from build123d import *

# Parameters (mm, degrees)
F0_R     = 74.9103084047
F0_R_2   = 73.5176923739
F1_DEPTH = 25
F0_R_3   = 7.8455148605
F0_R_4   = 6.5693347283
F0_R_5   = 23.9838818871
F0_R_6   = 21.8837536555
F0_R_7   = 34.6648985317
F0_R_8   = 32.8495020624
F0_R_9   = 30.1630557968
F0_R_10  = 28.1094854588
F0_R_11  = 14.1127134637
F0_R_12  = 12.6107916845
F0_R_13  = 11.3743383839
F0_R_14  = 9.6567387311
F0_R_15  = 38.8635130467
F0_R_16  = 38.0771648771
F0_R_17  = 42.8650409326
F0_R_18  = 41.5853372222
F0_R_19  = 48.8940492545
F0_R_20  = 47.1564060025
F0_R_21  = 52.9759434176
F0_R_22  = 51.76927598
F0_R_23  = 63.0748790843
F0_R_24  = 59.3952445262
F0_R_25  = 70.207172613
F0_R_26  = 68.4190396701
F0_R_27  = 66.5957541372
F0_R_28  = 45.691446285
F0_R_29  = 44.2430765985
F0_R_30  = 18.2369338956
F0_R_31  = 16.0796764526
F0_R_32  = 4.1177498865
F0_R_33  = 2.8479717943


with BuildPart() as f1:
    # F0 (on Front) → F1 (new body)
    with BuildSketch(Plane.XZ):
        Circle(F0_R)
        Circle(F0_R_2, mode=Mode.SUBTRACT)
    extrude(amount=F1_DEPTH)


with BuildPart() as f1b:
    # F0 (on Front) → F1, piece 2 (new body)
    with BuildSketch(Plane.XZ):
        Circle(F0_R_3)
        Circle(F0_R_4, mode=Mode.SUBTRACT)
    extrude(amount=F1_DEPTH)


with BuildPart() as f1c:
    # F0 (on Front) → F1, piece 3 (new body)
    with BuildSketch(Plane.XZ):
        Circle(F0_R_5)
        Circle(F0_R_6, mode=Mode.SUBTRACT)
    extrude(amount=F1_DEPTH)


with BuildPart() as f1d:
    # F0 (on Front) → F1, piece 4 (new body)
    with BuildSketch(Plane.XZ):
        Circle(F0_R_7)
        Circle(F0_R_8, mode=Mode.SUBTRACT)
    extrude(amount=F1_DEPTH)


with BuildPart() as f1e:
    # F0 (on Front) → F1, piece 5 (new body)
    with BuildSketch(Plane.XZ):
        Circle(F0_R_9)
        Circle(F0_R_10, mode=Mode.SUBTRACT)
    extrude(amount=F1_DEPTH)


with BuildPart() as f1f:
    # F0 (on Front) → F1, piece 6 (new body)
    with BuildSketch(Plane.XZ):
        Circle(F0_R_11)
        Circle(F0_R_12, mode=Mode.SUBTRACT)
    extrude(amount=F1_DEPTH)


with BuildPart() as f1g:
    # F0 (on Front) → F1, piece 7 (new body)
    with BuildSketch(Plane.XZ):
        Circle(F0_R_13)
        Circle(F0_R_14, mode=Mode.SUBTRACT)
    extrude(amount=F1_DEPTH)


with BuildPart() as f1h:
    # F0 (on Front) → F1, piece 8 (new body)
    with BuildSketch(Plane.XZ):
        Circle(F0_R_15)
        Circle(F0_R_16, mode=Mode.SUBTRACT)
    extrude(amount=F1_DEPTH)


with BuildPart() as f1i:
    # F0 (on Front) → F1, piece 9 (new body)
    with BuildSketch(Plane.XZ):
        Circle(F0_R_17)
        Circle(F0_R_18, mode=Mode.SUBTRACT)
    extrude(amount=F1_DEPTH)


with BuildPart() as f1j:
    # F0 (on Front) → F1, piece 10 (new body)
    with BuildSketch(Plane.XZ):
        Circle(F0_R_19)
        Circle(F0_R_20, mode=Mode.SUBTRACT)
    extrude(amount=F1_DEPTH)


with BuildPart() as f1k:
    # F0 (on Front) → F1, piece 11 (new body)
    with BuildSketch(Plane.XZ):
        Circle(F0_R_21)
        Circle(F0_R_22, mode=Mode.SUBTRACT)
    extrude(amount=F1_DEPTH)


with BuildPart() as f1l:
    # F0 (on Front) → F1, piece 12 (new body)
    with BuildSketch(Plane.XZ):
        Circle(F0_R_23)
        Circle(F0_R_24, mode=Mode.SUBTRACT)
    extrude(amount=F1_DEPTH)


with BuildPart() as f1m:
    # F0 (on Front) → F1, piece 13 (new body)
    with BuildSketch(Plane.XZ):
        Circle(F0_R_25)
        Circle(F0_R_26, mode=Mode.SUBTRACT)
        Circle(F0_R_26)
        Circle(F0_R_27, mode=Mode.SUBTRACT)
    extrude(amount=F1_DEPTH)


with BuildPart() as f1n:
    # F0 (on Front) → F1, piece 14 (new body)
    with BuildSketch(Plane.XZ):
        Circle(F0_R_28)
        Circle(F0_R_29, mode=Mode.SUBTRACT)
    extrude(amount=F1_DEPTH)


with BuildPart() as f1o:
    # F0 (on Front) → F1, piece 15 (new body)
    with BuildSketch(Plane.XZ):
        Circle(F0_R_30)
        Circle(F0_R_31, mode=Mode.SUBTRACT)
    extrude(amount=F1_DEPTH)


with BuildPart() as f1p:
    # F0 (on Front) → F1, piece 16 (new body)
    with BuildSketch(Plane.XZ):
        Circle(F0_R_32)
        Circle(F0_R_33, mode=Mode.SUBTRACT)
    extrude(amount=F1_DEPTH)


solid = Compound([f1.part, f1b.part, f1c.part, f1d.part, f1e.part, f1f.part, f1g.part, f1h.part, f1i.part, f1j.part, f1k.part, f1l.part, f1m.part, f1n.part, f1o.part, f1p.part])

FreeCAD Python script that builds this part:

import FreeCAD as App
import Part
import Sketcher
from FreeCAD import Vector
Q = App.Units.Quantity

doc = App.newDocument("Part")
body = doc.addObject("PartDesign::Body", "Body")

# Sketch on XZ plane
sketch1 = body.newObject("Sketcher::SketchObject", "Sketch")
sketch1.AttachmentSupport = (doc.getObject("XZ_Plane"), [""])
sketch1.MapMode = "FlatFace"
sketch1.addGeometry(Part.Circle(Vector(0, 0, 0), Vector(0, 0, 1), 74.910308), False)
sketch1.addGeometry(Part.Circle(Vector(0, 0, 0), Vector(0, 0, 1), 73.517692), False)
sketch1.addConstraint(Sketcher.Constraint("Coincident", 0, 3, -1, 1))
sketch1.addConstraint(Sketcher.Constraint("Coincident", 1, 3, -1, 1))
sketch1.addConstraint(Sketcher.Constraint("Diameter", 0, Q("149.820617 mm")))
sketch1.addConstraint(Sketcher.Constraint("Diameter", 1, Q("147.035385 mm")))
pad1 = body.newObject("PartDesign::Pad", "Pad")
pad1.Profile = sketch1
pad1.Length = 25
body2 = doc.addObject("PartDesign::Body", "Body001")

# Sketch on XZ plane
sketch2 = body2.newObject("Sketcher::SketchObject", "Sketch001")
sketch2.AttachmentSupport = (doc.getObject("XZ_Plane001"), [""])
sketch2.MapMode = "FlatFace"
sketch2.addGeometry(Part.Circle(Vector(0, 0, 0), Vector(0, 0, 1), 7.845515), False)
sketch2.addGeometry(Part.Circle(Vector(0, 0, 0), Vector(0, 0, 1), 6.569335), False)
sketch2.addConstraint(Sketcher.Constraint("Coincident", 0, 3, -1, 1))
sketch2.addConstraint(Sketcher.Constraint("Coincident", 1, 3, -1, 1))
sketch2.addConstraint(Sketcher.Constraint("Diameter", 0, Q("15.69103 mm")))
sketch2.addConstraint(Sketcher.Constraint("Diameter", 1, Q("13.138669 mm")))
pad2 = body2.newObject("PartDesign::Pad", "Pad001")
pad2.Profile = sketch2
pad2.Length = 25
body3 = doc.addObject("PartDesign::Body", "Body002")

# Sketch on XZ plane
sketch3 = body3.newObject("Sketcher::SketchObject", "Sketch002")
sketch3.AttachmentSupport = (doc.getObject("XZ_Plane002"), [""])
sketch3.MapMode = "FlatFace"
sketch3.addGeometry(Part.Circle(Vector(0, 0, 0), Vector(0, 0, 1), 23.983882), False)
sketch3.addGeometry(Part.Circle(Vector(0, 0, 0), Vector(0, 0, 1), 21.883754), False)
sketch3.addConstraint(Sketcher.Constraint("Coincident", 0, 3, -1, 1))
sketch3.addConstraint(Sketcher.Constraint("Coincident", 1, 3, -1, 1))
sketch3.addConstraint(Sketcher.Constraint("Diameter", 0, Q("47.967764 mm")))
sketch3.addConstraint(Sketcher.Constraint("Diameter", 1, Q("43.767507 mm")))
pad3 = body3.newObject("PartDesign::Pad", "Pad002")
pad3.Profile = sketch3
pad3.Length = 25
body4 = doc.addObject("PartDesign::Body", "Body003")

# Sketch on XZ plane
sketch4 = body4.newObject("Sketcher::SketchObject", "Sketch003")
sketch4.AttachmentSupport = (doc.getObject("XZ_Plane003"), [""])
sketch4.MapMode = "FlatFace"
sketch4.addGeometry(Part.Circle(Vector(0, 0, 0), Vector(0, 0, 1), 34.664899), False)
sketch4.addGeometry(Part.Circle(Vector(0, 0, 0), Vector(0, 0, 1), 32.849502), False)
sketch4.addConstraint(Sketcher.Constraint("Coincident", 0, 3, -1, 1))
sketch4.addConstraint(Sketcher.Constraint("Coincident", 1, 3, -1, 1))
sketch4.addConstraint(Sketcher.Constraint("Diameter", 0, Q("69.329797 mm")))
sketch4.addConstraint(Sketcher.Constraint("Diameter", 1, Q("65.699004 mm")))
pad4 = body4.newObject("PartDesign::Pad", "Pad003")
pad4.Profile = sketch4
pad4.Length = 25
body5 = doc.addObject("PartDesign::Body", "Body004")

# Sketch on XZ plane
sketch5 = body5.newObject("Sketcher::SketchObject", "Sketch004")
sketch5.AttachmentSupport = (doc.getObject("XZ_Plane004"), [""])
sketch5.MapMode = "FlatFace"
sketch5.addGeometry(Part.Circle(Vector(0, 0, 0), Vector(0, 0, 1), 30.163056), False)
sketch5.addGeometry(Part.Circle(Vector(0, 0, 0), Vector(0, 0, 1), 28.109485), False)
sketch5.addConstraint(Sketcher.Constraint("Coincident", 0, 3, -1, 1))
sketch5.addConstraint(Sketcher.Constraint("Coincident", 1, 3, -1, 1))
sketch5.addConstraint(Sketcher.Constraint("Diameter", 0, Q("60.326112 mm")))
sketch5.addConstraint(Sketcher.Constraint("Diameter", 1, Q("56.218971 mm")))
pad5 = body5.newObject("PartDesign::Pad", "Pad004")
pad5.Profile = sketch5
pad5.Length = 25
body6 = doc.addObject("PartDesign::Body", "Body005")

# Sketch on XZ plane
sketch6 = body6.newObject("Sketcher::SketchObject", "Sketch005")
sketch6.AttachmentSupport = (doc.getObject("XZ_Plane005"), [""])
sketch6.MapMode = "FlatFace"
sketch6.addGeometry(Part.Circle(Vector(0, 0, 0), Vector(0, 0, 1), 14.112713), False)
sketch6.addGeometry(Part.Circle(Vector(0, 0, 0), Vector(0, 0, 1), 12.610792), False)
sketch6.addConstraint(Sketcher.Constraint("Coincident", 0, 3, -1, 1))
sketch6.addConstraint(Sketcher.Constraint("Coincident", 1, 3, -1, 1))
sketch6.addConstraint(Sketcher.Constraint("Diameter", 0, Q("28.225427 mm")))
sketch6.addConstraint(Sketcher.Constraint("Diameter", 1, Q("25.221583 mm")))
pad6 = body6.newObject("PartDesign::Pad", "Pad005")
pad6.Profile = sketch6
pad6.Length = 25
body7 = doc.addObject("PartDesign::Body", "Body006")

# Sketch on XZ plane
sketch7 = body7.newObject("Sketcher::SketchObject", "Sketch006")
sketch7.AttachmentSupport = (doc.getObject("XZ_Plane006"), [""])
sketch7.MapMode = "FlatFace"
sketch7.addGeometry(Part.Circle(Vector(0, 0, 0), Vector(0, 0, 1), 11.374338), False)
sketch7.addGeometry(Part.Circle(Vector(0, 0, 0), Vector(0, 0, 1), 9.656739), False)
sketch7.addConstraint(Sketcher.Constraint("Coincident", 0, 3, -1, 1))
sketch7.addConstraint(Sketcher.Constraint("Coincident", 1, 3, -1, 1))
sketch7.addConstraint(Sketcher.Constraint("Diameter", 0, Q("22.748677 mm")))
sketch7.addConstraint(Sketcher.Constraint("Diameter", 1, Q("19.313477 mm")))
pad7 = body7.newObject("PartDesign::Pad", "Pad006")
pad7.Profile = sketch7
pad7.Length = 25
body8 = doc.addObject("PartDesign::Body", "Body007")

# Sketch on XZ plane
sketch8 = body8.newObject("Sketcher::SketchObject", "Sketch007")
sketch8.AttachmentSupport = (doc.getObject("XZ_Plane007"), [""])
sketch8.MapMode = "FlatFace"
sketch8.addGeometry(Part.Circle(Vector(0, 0, 0), Vector(0, 0, 1), 38.863513), False)
sketch8.addGeometry(Part.Circle(Vector(0, 0, 0), Vector(0, 0, 1), 38.077165), False)
sketch8.addConstraint(Sketcher.Constraint("Coincident", 0, 3, -1, 1))
sketch8.addConstraint(Sketcher.Constraint("Coincident", 1, 3, -1, 1))
sketch8.addConstraint(Sketcher.Constraint("Diameter", 1, Q("76.15433 mm")))
sketch8.addConstraint(Sketcher.Constraint("Diameter", 0, Q("77.727026 mm")))
pad8 = body8.newObject("PartDesign::Pad", "Pad007")
pad8.Profile = sketch8
pad8.Length = 25
body9 = doc.addObject("PartDesign::Body", "Body008")

# Sketch on XZ plane
sketch9 = body9.newObject("Sketcher::SketchObject", "Sketch008")
sketch9.AttachmentSupport = (doc.getObject("XZ_Plane008"), [""])
sketch9.MapMode = "FlatFace"
sketch9.addGeometry(Part.Circle(Vector(0, 0, 0), Vector(0, 0, 1), 42.865041), False)
sketch9.addGeometry(Part.Circle(Vector(0, 0, 0), Vector(0, 0, 1), 41.585337), False)
sketch9.addConstraint(Sketcher.Constraint("Coincident", 0, 3, -1, 1))
sketch9.addConstraint(Sketcher.Constraint("Coincident", 1, 3, -1, 1))
sketch9.addConstraint(Sketcher.Constraint("Diameter", 0, Q("85.730082 mm")))
sketch9.addConstraint(Sketcher.Constraint("Diameter", 1, Q("83.170674 mm")))
pad9 = body9.newObject("PartDesign::Pad", "Pad008")
pad9.Profile = sketch9
pad9.Length = 25
body10 = doc.addObject("PartDesign::Body", "Body009")

# Sketch on XZ plane
sketch10 = body10.newObject("Sketcher::SketchObject", "Sketch009")
sketch10.AttachmentSupport = (doc.getObject("XZ_Plane009"), [""])
sketch10.MapMode = "FlatFace"
sketch10.addGeometry(Part.Circle(Vector(0, 0, 0), Vector(0, 0, 1), 48.894049), False)
sketch10.addGeometry(Part.Circle(Vector(0, 0, 0), Vector(0, 0, 1), 47.156406), False)
sketch10.addConstraint(Sketcher.Constraint("Coincident", 0, 3, -1, 1))
sketch10.addConstraint(Sketcher.Constraint("Coincident", 1, 3, -1, 1))
sketch10.addConstraint(Sketcher.Constraint("Diameter", 0, Q("97.788099 mm")))
sketch10.addConstraint(Sketcher.Constraint("Diameter", 1, Q("94.312812 mm")))
pad10 = body10.newObject("PartDesign::Pad", "Pad009")
pad10.Profile = sketch10
pad10.Length = 25
body11 = doc.addObject("PartDesign::Body", "Body010")

# Sketch on XZ plane
sketch11 = body11.newObject("Sketcher::SketchObject", "Sketch010")
sketch11.AttachmentSupport = (doc.getObject("XZ_Plane010"), [""])
sketch11.MapMode = "FlatFace"
sketch11.addGeometry(Part.Circle(Vector(0, 0, 0), Vector(0, 0, 1), 52.975943), False)
sketch11.addGeometry(Part.Circle(Vector(0, 0, 0), Vector(0, 0, 1), 51.769276), False)
sketch11.addConstraint(Sketcher.Constraint("Coincident", 0, 3, -1, 1))
sketch11.addConstraint(Sketcher.Constraint("Coincident", 1, 3, -1, 1))
sketch11.addConstraint(Sketcher.Constraint("Diameter", 1, Q("103.538552 mm")))
sketch11.addConstraint(Sketcher.Constraint("Diameter", 0, Q("105.951887 mm")))
pad11 = body11.newObject("PartDesign::Pad", "Pad010")
pad11.Profile = sketch11
pad11.Length = 25
body12 = doc.addObject("PartDesign::Body", "Body011")

# Sketch on XZ plane
sketch12 = body12.newObject("Sketcher::SketchObject", "Sketch011")
sketch12.AttachmentSupport = (doc.getObject("XZ_Plane011"), [""])
sketch12.MapMode = "FlatFace"
sketch12.addGeometry(Part.Circle(Vector(0, 0, 0), Vector(0, 0, 1), 63.074879), False)
sketch12.addGeometry(Part.Circle(Vector(0, 0, 0), Vector(0, 0, 1), 59.395245), False)
sketch12.addConstraint(Sketcher.Constraint("Coincident", 0, 3, -1, 1))
sketch12.addConstraint(Sketcher.Constraint("Coincident", 1, 3, -1, 1))
sketch12.addConstraint(Sketcher.Constraint("Diameter", 0, Q("126.149758 mm")))
sketch12.addConstraint(Sketcher.Constraint("Diameter", 1, Q("118.790489 mm")))
pad12 = body12.newObject("PartDesign::Pad", "Pad011")
pad12.Profile = sketch12
pad12.Length = 25
body13 = doc.addObject("PartDesign::Body", "Body012")

# Sketch on XZ plane
sketch13 = body13.newObject("Sketcher::SketchObject", "Sketch012")
sketch13.AttachmentSupport = (doc.getObject("XZ_Plane012"), [""])
sketch13.MapMode = "FlatFace"
sketch13.addGeometry(Part.Circle(Vector(0, 0, 0), Vector(0, 0, 1), 70.207173), False)
sketch13.addGeometry(Part.Circle(Vector(0, 0, 0), Vector(0, 0, 1), 66.595754), False)
sketch13.addConstraint(Sketcher.Constraint("Coincident", 0, 3, -1, 1))
sketch13.addConstraint(Sketcher.Constraint("Coincident", 1, 3, -1, 1))
sketch13.addConstraint(Sketcher.Constraint("Diameter", 1, Q("133.191508 mm")))
sketch13.addConstraint(Sketcher.Constraint("Diameter", 0, Q("140.414345 mm")))
pad13 = body13.newObject("PartDesign::Pad", "Pad012")
pad13.Profile = sketch13
pad13.Length = 25
body14 = doc.addObject("PartDesign::Body", "Body013")

# Sketch on XZ plane
sketch14 = body14.newObject("Sketcher::SketchObject", "Sketch013")
sketch14.AttachmentSupport = (doc.getObject("XZ_Plane013"), [""])
sketch14.MapMode = "FlatFace"
sketch14.addGeometry(Part.Circle(Vector(0, 0, 0), Vector(0, 0, 1), 45.691446), False)
sketch14.addGeometry(Part.Circle(Vector(0, 0, 0), Vector(0, 0, 1), 44.243077), False)
sketch14.addConstraint(Sketcher.Constraint("Coincident", 0, 3, -1, 1))
sketch14.addConstraint(Sketcher.Constraint("Coincident", 1, 3, -1, 1))
sketch14.addConstraint(Sketcher.Constraint("Diameter", 0, Q("91.382893 mm")))
sketch14.addConstraint(Sketcher.Constraint("Diameter", 1, Q("88.486153 mm")))
pad14 = body14.newObject("PartDesign::Pad", "Pad013")
pad14.Profile = sketch14
pad14.Length = 25
body15 = doc.addObject("PartDesign::Body", "Body014")

# Sketch on XZ plane
sketch15 = body15.newObject("Sketcher::SketchObject", "Sketch014")
sketch15.AttachmentSupport = (doc.getObject("XZ_Plane014"), [""])
sketch15.MapMode = "FlatFace"
sketch15.addGeometry(Part.Circle(Vector(0, 0, 0), Vector(0, 0, 1), 18.236934), False)
sketch15.addGeometry(Part.Circle(Vector(0, 0, 0), Vector(0, 0, 1), 16.079676), False)
sketch15.addConstraint(Sketcher.Constraint("Coincident", 0, 3, -1, 1))
sketch15.addConstraint(Sketcher.Constraint("Coincident", 1, 3, -1, 1))
sketch15.addConstraint(Sketcher.Constraint("Diameter", 0, Q("36.473868 mm")))
sketch15.addConstraint(Sketcher.Constraint("Diameter", 1, Q("32.159353 mm")))
pad15 = body15.newObject("PartDesign::Pad", "Pad014")
pad15.Profile = sketch15
pad15.Length = 25
body16 = doc.addObject("PartDesign::Body", "Body015")

# Sketch on XZ plane
sketch16 = body16.newObject("Sketcher::SketchObject", "Sketch015")
sketch16.AttachmentSupport = (doc.getObject("XZ_Plane015"), [""])
sketch16.MapMode = "FlatFace"
sketch16.addGeometry(Part.Circle(Vector(0, 0, 0), Vector(0, 0, 1), 4.11775), False)
sketch16.addGeometry(Part.Circle(Vector(0, 0, 0), Vector(0, 0, 1), 2.847972), False)
sketch16.addConstraint(Sketcher.Constraint("Coincident", 0, 3, -1, 1))
sketch16.addConstraint(Sketcher.Constraint("Coincident", 1, 3, -1, 1))
sketch16.addConstraint(Sketcher.Constraint("Diameter", 0, Q("8.2355 mm")))
sketch16.addConstraint(Sketcher.Constraint("Diameter", 1, Q("5.695944 mm")))
pad16 = body16.newObject("PartDesign::Pad", "Pad015")
pad16.Profile = sketch16
pad16.Length = 25

doc.recompute()
